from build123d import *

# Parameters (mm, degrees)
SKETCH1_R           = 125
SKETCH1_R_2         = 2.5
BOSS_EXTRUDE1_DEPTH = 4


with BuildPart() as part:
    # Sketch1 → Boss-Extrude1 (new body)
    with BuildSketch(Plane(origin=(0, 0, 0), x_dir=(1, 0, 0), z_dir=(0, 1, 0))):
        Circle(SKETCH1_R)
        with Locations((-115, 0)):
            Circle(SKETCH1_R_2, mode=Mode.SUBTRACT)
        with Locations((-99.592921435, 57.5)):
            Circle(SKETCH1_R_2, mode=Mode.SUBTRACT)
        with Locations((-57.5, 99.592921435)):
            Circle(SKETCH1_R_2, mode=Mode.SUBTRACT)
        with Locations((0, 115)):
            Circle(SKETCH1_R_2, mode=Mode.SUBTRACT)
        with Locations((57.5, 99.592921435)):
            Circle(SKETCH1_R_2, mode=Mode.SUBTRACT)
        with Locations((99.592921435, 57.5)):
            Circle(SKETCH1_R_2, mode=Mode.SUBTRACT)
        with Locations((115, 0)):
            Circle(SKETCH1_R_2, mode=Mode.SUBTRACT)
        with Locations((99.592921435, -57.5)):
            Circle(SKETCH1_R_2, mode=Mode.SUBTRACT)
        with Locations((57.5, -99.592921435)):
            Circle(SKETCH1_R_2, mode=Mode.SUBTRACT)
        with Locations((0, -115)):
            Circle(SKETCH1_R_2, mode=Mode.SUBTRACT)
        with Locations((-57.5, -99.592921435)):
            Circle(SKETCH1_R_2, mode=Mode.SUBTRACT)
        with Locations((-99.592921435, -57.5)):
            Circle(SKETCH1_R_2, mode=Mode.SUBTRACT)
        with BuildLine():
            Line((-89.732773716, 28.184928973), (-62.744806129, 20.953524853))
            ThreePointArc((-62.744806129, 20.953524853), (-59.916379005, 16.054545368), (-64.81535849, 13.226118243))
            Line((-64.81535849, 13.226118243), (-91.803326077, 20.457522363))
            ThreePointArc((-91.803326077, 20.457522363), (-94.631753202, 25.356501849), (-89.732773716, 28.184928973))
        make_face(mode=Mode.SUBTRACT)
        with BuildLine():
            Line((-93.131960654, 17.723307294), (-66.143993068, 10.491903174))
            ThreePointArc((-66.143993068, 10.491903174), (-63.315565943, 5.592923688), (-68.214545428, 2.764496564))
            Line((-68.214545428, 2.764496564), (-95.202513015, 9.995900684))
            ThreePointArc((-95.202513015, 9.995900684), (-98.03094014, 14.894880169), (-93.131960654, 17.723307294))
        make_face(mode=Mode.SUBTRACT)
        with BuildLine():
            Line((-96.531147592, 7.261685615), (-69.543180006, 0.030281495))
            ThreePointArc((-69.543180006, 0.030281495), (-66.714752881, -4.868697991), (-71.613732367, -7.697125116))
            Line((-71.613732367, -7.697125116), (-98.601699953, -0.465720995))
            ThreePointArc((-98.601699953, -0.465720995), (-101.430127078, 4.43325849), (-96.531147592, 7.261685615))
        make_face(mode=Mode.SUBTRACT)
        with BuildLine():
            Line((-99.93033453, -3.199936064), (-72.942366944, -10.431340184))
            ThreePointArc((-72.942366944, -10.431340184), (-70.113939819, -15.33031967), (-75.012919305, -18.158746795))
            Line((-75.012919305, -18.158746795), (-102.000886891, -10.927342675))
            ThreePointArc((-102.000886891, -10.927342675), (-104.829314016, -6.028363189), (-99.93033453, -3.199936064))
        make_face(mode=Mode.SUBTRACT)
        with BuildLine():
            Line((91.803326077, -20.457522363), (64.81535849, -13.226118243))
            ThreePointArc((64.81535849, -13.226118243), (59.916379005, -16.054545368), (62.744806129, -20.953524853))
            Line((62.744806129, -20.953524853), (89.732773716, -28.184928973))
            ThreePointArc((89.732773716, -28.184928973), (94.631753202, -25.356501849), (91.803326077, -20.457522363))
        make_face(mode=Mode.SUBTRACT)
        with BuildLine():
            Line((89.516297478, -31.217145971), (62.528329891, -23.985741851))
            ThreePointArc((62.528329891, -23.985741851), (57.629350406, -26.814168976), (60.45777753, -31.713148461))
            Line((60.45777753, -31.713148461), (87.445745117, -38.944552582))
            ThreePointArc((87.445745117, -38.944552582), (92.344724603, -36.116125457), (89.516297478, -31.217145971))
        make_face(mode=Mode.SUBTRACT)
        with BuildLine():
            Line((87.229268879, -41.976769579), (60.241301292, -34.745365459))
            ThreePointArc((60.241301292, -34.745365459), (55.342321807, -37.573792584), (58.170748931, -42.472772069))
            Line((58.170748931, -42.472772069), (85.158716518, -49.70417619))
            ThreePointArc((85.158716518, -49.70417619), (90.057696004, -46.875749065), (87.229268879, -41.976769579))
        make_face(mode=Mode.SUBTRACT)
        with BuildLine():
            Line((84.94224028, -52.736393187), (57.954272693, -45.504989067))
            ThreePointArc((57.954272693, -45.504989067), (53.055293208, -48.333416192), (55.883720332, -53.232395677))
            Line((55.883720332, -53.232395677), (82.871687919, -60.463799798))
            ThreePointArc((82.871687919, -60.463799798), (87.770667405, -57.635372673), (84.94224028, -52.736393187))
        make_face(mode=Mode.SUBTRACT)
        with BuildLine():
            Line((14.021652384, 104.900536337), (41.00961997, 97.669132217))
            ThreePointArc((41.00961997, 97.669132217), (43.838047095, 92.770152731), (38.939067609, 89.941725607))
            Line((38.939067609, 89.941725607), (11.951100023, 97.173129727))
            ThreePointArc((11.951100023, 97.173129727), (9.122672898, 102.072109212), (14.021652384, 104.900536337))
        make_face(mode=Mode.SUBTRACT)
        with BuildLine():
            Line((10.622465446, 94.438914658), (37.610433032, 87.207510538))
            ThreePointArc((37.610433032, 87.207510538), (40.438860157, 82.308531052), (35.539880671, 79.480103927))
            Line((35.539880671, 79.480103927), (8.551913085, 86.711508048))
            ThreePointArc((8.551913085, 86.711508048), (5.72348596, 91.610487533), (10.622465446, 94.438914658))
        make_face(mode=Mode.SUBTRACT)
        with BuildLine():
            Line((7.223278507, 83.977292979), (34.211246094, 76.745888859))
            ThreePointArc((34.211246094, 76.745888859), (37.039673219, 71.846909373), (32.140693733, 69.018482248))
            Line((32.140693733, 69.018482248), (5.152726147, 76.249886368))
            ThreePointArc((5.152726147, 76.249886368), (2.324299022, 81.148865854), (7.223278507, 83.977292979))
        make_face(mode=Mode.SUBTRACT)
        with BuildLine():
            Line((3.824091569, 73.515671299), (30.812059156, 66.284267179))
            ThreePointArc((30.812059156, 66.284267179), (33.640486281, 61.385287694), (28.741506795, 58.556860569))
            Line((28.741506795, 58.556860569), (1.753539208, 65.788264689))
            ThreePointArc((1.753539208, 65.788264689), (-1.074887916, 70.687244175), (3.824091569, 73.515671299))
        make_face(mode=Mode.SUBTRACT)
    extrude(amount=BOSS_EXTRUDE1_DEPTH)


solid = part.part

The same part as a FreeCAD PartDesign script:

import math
import FreeCAD as App
import Part
import Sketcher

V = App.Vector
Q = App.Units.Quantity

doc = App.newDocument("Part")
body = doc.addObject("PartDesign::Body", "Body")

sketch1 = body.newObject("Sketcher::SketchObject", "Sketch")
sketch1.AttachmentSupport = (doc.getObject("XZ_Plane"), [""])
sketch1.MapMode = "FlatFace"
sketch1.addGeometry([
    Part.Circle(V(0, 0, 0), V(0, 0, 1), 125),
    Part.Circle(V(-57.5, 99.592921, 0), V(0, 0, 1), 2.5),
    Part.Circle(V(-99.592921, 57.5, 0), V(0, 0, 1), 2.5),
    Part.ArcOfCircle(Part.Circle(V(-100.965611, 7.063639, 0), V(0, 0, 1), 4), math.radians(105), math.radians(285)),
    Part.LineSegment(V(-99.930335, 3.199936, 0), V(-72.942367, 10.43134, 0)),
    Part.ArcOfCircle(Part.Circle(V(-73.977643, 14.295043, 0), V(0, 0, 1), 4), math.radians(-75), math.radians(105)),
    Part.LineSegment(V(-75.012919, 18.158747, 0), V(-102.000887, 10.927343, 0)),
    Part.ArcOfCircle(Part.Circle(V(-97.566424, -3.397982, 0), V(0, 0, 1), 4), math.radians(105), math.radians(285)),
    Part.LineSegment(V(-96.531148, -7.261686, 0), V(-69.54318, -0.030281, 0)),
    Part.ArcOfCircle(Part.Circle(V(-70.578456, 3.833422, 0), V(0, 0, 1), 4), math.radians(-75), math.radians(105)),
    Part.LineSegment(V(-71.613732, 7.697125, 0), V(-98.6017, 0.465721, 0)),
    Part.Circle(V(0, 115, 0), V(0, 0, 1), 2.5),
    Part.Circle(V(57.5, 99.592921, 0), V(0, 0, 1), 2.5),
    Part.LineSegment(V(57.954273, 45.504989, 0), V(84.94224, 52.736393, 0)),
    Part.ArcOfCircle(Part.Circle(V(83.906964, 56.600096, 0), V(0, 0, 1), 4), math.radians(-75), math.radians(105)),
    Part.LineSegment(V(82.871688, 60.4638, 0), V(55.88372, 53.232396, 0)),
    Part.ArcOfCircle(Part.Circle(V(56.918997, 49.368692, 0), V(0, 0, 1), 4), math.radians(105), math.radians(285)),
    Part.LineSegment(V(60.241301, 34.745365, 0), V(87.229269, 41.97677, 0)),
    Part.ArcOfCircle(Part.Circle(V(86.193993, 45.840473, 0), V(0, 0, 1), 4), math.radians(-75), math.radians(105)),
    Part.LineSegment(V(85.158717, 49.704176, 0), V(58.170749, 42.472772, 0)),
    Part.ArcOfCircle(Part.Circle(V(59.206025, 38.609069, 0), V(0, 0, 1), 4), math.radians(105), math.radians(285)),
    Part.LineSegment(V(62.52833, 23.985742, 0), V(89.516297, 31.217146, 0)),
    Part.ArcOfCircle(Part.Circle(V(88.481021, 35.080849, 0), V(0, 0, 1), 4), math.radians(-75), math.radians(105)),
    Part.LineSegment(V(87.445745, 38.944553, 0), V(60.457778, 31.713148, 0)),
    Part.ArcOfCircle(Part.Circle(V(61.493054, 27.849445, 0), V(0, 0, 1), 4), math.radians(105), math.radians(285)),
    Part.Circle(V(99.592921, 57.5, 0), V(0, 0, 1), 2.5),
    Part.LineSegment(V(64.815358, 13.226118, 0), V(91.803326, 20.457522, 0)),
    Part.ArcOfCircle(Part.Circle(V(90.76805, 24.321226, 0), V(0, 0, 1), 4), math.radians(-75), math.radians(105)),
    Part.LineSegment(V(89.732774, 28.184929, 0), V(62.744806, 20.953525, 0)),
    Part.ArcOfCircle(Part.Circle(V(63.780082, 17.089822, 0), V(0, 0, 1), 4), math.radians(105), math.radians(285)),
    Part.Circle(V(-115, 0, 0), V(0, 0, 1), 2.5),
    Part.ArcOfCircle(Part.Circle(V(-94.167237, -13.859604, 0), V(0, 0, 1), 4), math.radians(105), math.radians(285)),
    Part.LineSegment(V(-93.131961, -17.723307, 0), V(-66.143993, -10.491903, 0)),
    Part.ArcOfCircle(Part.Circle(V(-67.179269, -6.6282, 0), V(0, 0, 1), 4), math.radians(-75), math.radians(105)),
    Part.LineSegment(V(-68.214545, -2.764497, 0), V(-95.202513, -9.995901, 0)),
    Part.ArcOfCircle(Part.Circle(V(-90.76805, -24.321226, 0), V(0, 0, 1), 4), math.radians(105), math.radians(285)),
    Part.LineSegment(V(-89.732774, -28.184929, 0), V(-62.744806, -20.953525, 0)),
    Part.ArcOfCircle(Part.Circle(V(-63.780082, -17.089822, 0), V(0, 0, 1), 4), math.radians(-75), math.radians(105)),
    Part.LineSegment(V(-64.815358, -13.226118, 0), V(-91.803326, -20.457522, 0)),
    Part.Circle(V(-99.592921, -57.5, 0), V(0, 0, 1), 2.5),
    Part.Circle(V(-57.5, -99.592921, 0), V(0, 0, 1), 2.5),
    Part.Circle(V(115, 0, 0), V(0, 0, 1), 2.5),
    Part.Circle(V(99.592921, -57.5, 0), V(0, 0, 1), 2.5),
    Part.ArcOfCircle(Part.Circle(V(2.788815, -69.651968, 0), V(0, 0, 1), 4), math.radians(105), math.radians(285)),
    Part.LineSegment(V(3.824092, -73.515671, 0), V(30.812059, -66.284267, 0)),
    Part.ArcOfCircle(Part.Circle(V(29.776783, -62.420564, 0), V(0, 0, 1), 4), math.radians(-75), math.radians(105)),
    Part.LineSegment(V(28.741507, -58.556861, 0), V(1.753539, -65.788265, 0)),
    Part.ArcOfCircle(Part.Circle(V(6.188002, -80.11359, 0), V(0, 0, 1), 4), math.radians(105), math.radians(285)),
    Part.LineSegment(V(7.223279, -83.977293, 0), V(34.211246, -76.745889, 0)),
    Part.ArcOfCircle(Part.Circle(V(33.17597, -72.882186, 0), V(0, 0, 1), 4), math.radians(-75), math.radians(105)),
    Part.LineSegment(V(32.140694, -69.018482, 0), V(5.152726, -76.249886, 0)),
    Part.ArcOfCircle(Part.Circle(V(9.587189, -90.575211, 0), V(0, 0, 1), 4), math.radians(105), math.radians(285)),
    Part.LineSegment(V(10.622465, -94.438915, 0), V(37.610433, -87.207511, 0)),
    Part.ArcOfCircle(Part.Circle(V(36.575157, -83.343807, 0), V(0, 0, 1), 4), math.radians(-75), math.radians(105)),
    Part.LineSegment(V(35.539881, -79.480104, 0), V(8.551913, -86.711508, 0)),
    Part.ArcOfCircle(Part.Circle(V(12.986376, -101.036833, 0), V(0, 0, 1), 4), math.radians(105), math.radians(285)),
    Part.LineSegment(V(14.021652, -104.900536, 0), V(41.00962, -97.669132, 0)),
    Part.ArcOfCircle(Part.Circle(V(39.974344, -93.805429, 0), V(0, 0, 1), 4), math.radians(-75), math.radians(105)),
    Part.LineSegment(V(38.939068, -89.941726, 0), V(11.9511, -97.17313, 0)),
    Part.Circle(V(0, -115, 0), V(0, 0, 1), 2.5),
    Part.Circle(V(57.5, -99.592921, 0), V(0, 0, 1), 2.5),
], False)
sketch1.addConstraint([
    Sketcher.Constraint("Tangent", 3, 2, 4, 1),
    Sketcher.Constraint("Tangent", 4, 2, 5, 1),
    Sketcher.Constraint("Tangent", 5, 2, 6, 1),
    Sketcher.Constraint("Tangent", 6, 2, 3, 1),
    Sketcher.Constraint("Tangent", 7, 2, 8, 1),
    Sketcher.Constraint("Tangent", 8, 2, 9, 1),
    Sketcher.Constraint("Tangent", 9, 2, 10, 1),
    Sketcher.Constraint("Tangent", 10, 2, 7, 1),
    Sketcher.Constraint("Tangent", 13, 2, 14, 1),
    Sketcher.Constraint("Tangent", 14, 2, 15, 1),
    Sketcher.Constraint("Tangent", 15, 2, 16, 1),
    Sketcher.Constraint("Tangent", 16, 2, 13, 1),
    Sketcher.Constraint("Tangent", 17, 2, 18, 1),
    Sketcher.Constraint("Tangent", 18, 2, 19, 1),
    Sketcher.Constraint("Tangent", 19, 2, 20, 1),
    Sketcher.Constraint("Tangent", 20, 2, 17, 1),
    Sketcher.Constraint("Tangent", 21, 2, 22, 1),
    Sketcher.Constraint("Tangent", 22, 2, 23, 1),
    Sketcher.Constraint("Tangent", 23, 2, 24, 1),
    Sketcher.Constraint("Tangent", 24, 2, 21, 1),
    Sketcher.Constraint("Tangent", 26, 2, 27, 1),
    Sketcher.Constraint("Tangent", 27, 2, 28, 1),
    Sketcher.Constraint("Tangent", 28, 2, 29, 1),
    Sketcher.Constraint("Tangent", 29, 2, 26, 1),
    Sketcher.Constraint("Tangent", 31, 2, 32, 1),
    Sketcher.Constraint("Tangent", 32, 2, 33, 1),
    Sketcher.Constraint("Tangent", 33, 2, 34, 1),
    Sketcher.Constraint("Tangent", 34, 2, 31, 1),
    Sketcher.Constraint("Tangent", 35, 2, 36, 1),
    Sketcher.Constraint("Tangent", 36, 2, 37, 1),
    Sketcher.Constraint("Tangent", 37, 2, 38, 1),
    Sketcher.Constraint("Tangent", 38, 2, 35, 1),
    Sketcher.Constraint("Tangent", 43, 2, 44, 1),
    Sketcher.Constraint("Tangent", 44, 2, 45, 1),
    Sketcher.Constraint("Tangent", 45, 2, 46, 1),
    Sketcher.Constraint("Tangent", 46, 2, 43, 1),
    Sketcher.Constraint("Tangent", 47, 2, 48, 1),
    Sketcher.Constraint("Tangent", 48, 2, 49, 1),
    Sketcher.Constraint("Tangent", 49, 2, 50, 1),
    Sketcher.Constraint("Tangent", 50, 2, 47, 1),
    Sketcher.Constraint("Tangent", 51, 2, 52, 1),
    Sketcher.Constraint("Tangent", 52, 2, 53, 1),
    Sketcher.Constraint("Tangent", 53, 2, 54, 1),
    Sketcher.Constraint("Tangent", 54, 2, 51, 1),
    Sketcher.Constraint("Tangent", 55, 2, 56, 1),
    Sketcher.Constraint("Tangent", 56, 2, 57, 1),
    Sketcher.Constraint("Tangent", 57, 2, 58, 1),
    Sketcher.Constraint("Tangent", 58, 2, 55, 1),
    Sketcher.Constraint("Coincident", 0, 3, -1, 1),
    Sketcher.Constraint("Equal", 1, 2),
    Sketcher.Constraint("Equal", 3, 5),
    Sketcher.Constraint("Equal", 5, 7),
    Sketcher.Constraint("Equal", 7, 9),
    Sketcher.Constraint("Equal", 2, 11),
    Sketcher.Constraint("Equal", 11, 12),
    Sketcher.Constraint("Equal", 9, 14),
    Sketcher.Constraint("Equal", 14, 16),
    Sketcher.Constraint("Equal", 16, 18),
    Sketcher.Constraint("Equal", 18, 20),
    Sketcher.Constraint("Equal", 20, 22),
    Sketcher.Constraint("Equal", 22, 24),
    Sketcher.Constraint("Equal", 12, 25),
    Sketcher.Constraint("Equal", 24, 27),
    Sketcher.Constraint("Equal", 27, 29),
    Sketcher.Constraint("Equal", 25, 30),
    Sketcher.Constraint("Equal", 29, 31),
    Sketcher.Constraint("Equal", 31, 33),
    Sketcher.Constraint("Equal", 33, 35),
    Sketcher.Constraint("Equal", 35, 37),
    Sketcher.Constraint("Equal", 30, 39),
    Sketcher.Constraint("Equal", 39, 40),
    Sketcher.Constraint("Equal", 40, 41),
    Sketcher.Constraint("Equal", 41, 42),
    Sketcher.Constraint("Equal", 37, 43),
    Sketcher.Constraint("Equal", 43, 45),
    Sketcher.Constraint("Equal", 45, 47),
    Sketcher.Constraint("Equal", 47, 49),
    Sketcher.Constraint("Equal", 49, 51),
    Sketcher.Constraint("Equal", 51, 53),
    Sketcher.Constraint("Equal", 53, 55),
    Sketcher.Constraint("Equal", 55, 57),
    Sketcher.Constraint("Equal", 42, 59),
    Sketcher.Constraint("Equal", 59, 60),
    Sketcher.Constraint("Symmetric", 27, 3, 35, 3, -1, 1),
    Sketcher.Constraint("Symmetric", 29, 3, 37, 3, -1, 1),
    Sketcher.Constraint("Symmetric", 25, 3, 39, 3, -1, 1),
    Sketcher.Constraint("Symmetric", 12, 3, 40, 3, -1, 1),
    Sketcher.Constraint("Symmetric", 30, 3, 41, 3, -1, 1),
    Sketcher.Constraint("Symmetric", 2, 3, 42, 3, -1, 1),
    Sketcher.Constraint("Symmetric", 11, 3, 59, 3, -1, 1),
    Sketcher.Constraint("Symmetric", 1, 3, 60, 3, -1, 1),
    Sketcher.Constraint("Symmetric", 1, 3, 12, 3, -2),
    Sketcher.Constraint("Symmetric", 2, 3, 25, 3, -2),
    Sketcher.Constraint("PointOnObject", 11, 3, -2),
    Sketcher.Constraint("PointOnObject", 30, 3, -1),
    Sketcher.Constraint("Parallel", 6, 8),
    Sketcher.Constraint("Parallel", 10, 13),
    Sketcher.Constraint("Parallel", 15, 17),
    Sketcher.Constraint("Parallel", 19, 21),
    Sketcher.Constraint("Parallel", 23, 26),
    Sketcher.Constraint("Parallel", 28, 32),
    Sketcher.Constraint("Parallel", 38, 44),
    Sketcher.Constraint("Parallel", 46, 48),
    Sketcher.Constraint("Parallel", 50, 52),
    Sketcher.Constraint("Parallel", 54, 56),
    Sketcher.Constraint("Equal", 6, 8),
    Sketcher.Constraint("Equal", 10, 13),
    Sketcher.Constraint("Equal", 15, 17),
    Sketcher.Constraint("Equal", 19, 21),
    Sketcher.Constraint("Equal", 23, 26),
    Sketcher.Constraint("Equal", 28, 32),
    Sketcher.Constraint("Equal", 38, 44),
    Sketcher.Constraint("Equal", 46, 48),
    Sketcher.Constraint("Equal", 50, 52),
    Sketcher.Constraint("Equal", 54, 56),
    Sketcher.Constraint("Diameter", 0, Q("250 mm")),
    Sketcher.Constraint("Diameter", 1, Q("5 mm")),
    Sketcher.Constraint("Radius", 3, Q("4 mm")),
    Sketcher.Constraint("Angle", 4, Q("15 deg")),
    Sketcher.Constraint("DistanceY", -1, 1, 11, 3, Q("115 mm")),
    Sketcher.Constraint("DistanceX", 30, 3, -1, 1, Q("115 mm")),
    Sketcher.Constraint("DistanceX", 1, 3, -1, 1, Q("57.5 mm")),
    Sketcher.Constraint("DistanceY", -1, 1, 2, 3, Q("57.5 mm")),
    Sketcher.Constraint("Distance", 4, Q("27.94 mm")),
    Sketcher.Constraint("DistanceY", 33, 3, -1, 1, Q("6.6282 mm")),
    Sketcher.Constraint("DistanceX", 10, 2, -1, 1, Q("98.6017 mm")),
    Sketcher.Constraint("DistanceY", -1, 1, 14, 2, Q("60.4638 mm")),
    Sketcher.Constraint("DistanceX", -1, 1, 20, 2, Q("60.241301 mm")),
    Sketcher.Constraint("DistanceX", -1, 1, 58, 2, Q("11.9511 mm")),
    Sketcher.Constraint("DistanceY", -1, 1, 1, 3, Q("99.592921 mm")),
    Sketcher.Constraint("DistanceX", 2, 3, -1, 1, Q("99.592921 mm")),
    Sketcher.Constraint("DistanceX", 3, 3, -1, 1, Q("100.965611 mm")),
    Sketcher.Constraint("DistanceY", -1, 1, 3, 3, Q("7.063639 mm")),
    Sketcher.Constraint("DistanceY", -1, 1, 9, 3, Q("3.833422 mm")),
    Sketcher.Constraint("DistanceY", -1, 1, 20, 3, Q("38.609069 mm")),
    Sketcher.Constraint("DistanceX", -1, 1, 22, 3, Q("88.481021 mm")),
    Sketcher.Constraint("DistanceY", -1, 1, 22, 3, Q("35.080849 mm")),
    Sketcher.Constraint("DistanceX", -1, 1, 27, 3, Q("90.76805 mm")),
    Sketcher.Constraint("DistanceY", -1, 1, 29, 3, Q("17.089822 mm")),
    Sketcher.Constraint("DistanceX", 33, 3, -1, 1, Q("67.179269 mm")),
    Sketcher.Constraint("DistanceY", 47, 3, -1, 1, Q("80.11359 mm")),
    Sketcher.Constraint("DistanceX", -1, 1, 49, 3, Q("33.17597 mm")),
    Sketcher.Constraint("DistanceX", -1, 1, 51, 3, Q("9.587189 mm")),
    Sketcher.Constraint("DistanceY", 51, 3, -1, 1, Q("90.575211 mm")),
    Sketcher.Constraint("DistanceY", 57, 3, -1, 1, Q("93.805429 mm")),
    Sketcher.Constraint("DistanceX", -1, 1, 13, 2, Q("84.94224 mm")),
    Sketcher.Constraint("DistanceX", -1, 1, 43, 2, Q("3.824092 mm")),
    Sketcher.Constraint("DistanceY", 43, 2, -1, 1, Q("73.515671 mm")),
])
pad1 = body.newObject("PartDesign::Pad", "Pad")
pad1.Profile = sketch1
pad1.Length = 4
pad1.Reversed = True

doc.recompute()
